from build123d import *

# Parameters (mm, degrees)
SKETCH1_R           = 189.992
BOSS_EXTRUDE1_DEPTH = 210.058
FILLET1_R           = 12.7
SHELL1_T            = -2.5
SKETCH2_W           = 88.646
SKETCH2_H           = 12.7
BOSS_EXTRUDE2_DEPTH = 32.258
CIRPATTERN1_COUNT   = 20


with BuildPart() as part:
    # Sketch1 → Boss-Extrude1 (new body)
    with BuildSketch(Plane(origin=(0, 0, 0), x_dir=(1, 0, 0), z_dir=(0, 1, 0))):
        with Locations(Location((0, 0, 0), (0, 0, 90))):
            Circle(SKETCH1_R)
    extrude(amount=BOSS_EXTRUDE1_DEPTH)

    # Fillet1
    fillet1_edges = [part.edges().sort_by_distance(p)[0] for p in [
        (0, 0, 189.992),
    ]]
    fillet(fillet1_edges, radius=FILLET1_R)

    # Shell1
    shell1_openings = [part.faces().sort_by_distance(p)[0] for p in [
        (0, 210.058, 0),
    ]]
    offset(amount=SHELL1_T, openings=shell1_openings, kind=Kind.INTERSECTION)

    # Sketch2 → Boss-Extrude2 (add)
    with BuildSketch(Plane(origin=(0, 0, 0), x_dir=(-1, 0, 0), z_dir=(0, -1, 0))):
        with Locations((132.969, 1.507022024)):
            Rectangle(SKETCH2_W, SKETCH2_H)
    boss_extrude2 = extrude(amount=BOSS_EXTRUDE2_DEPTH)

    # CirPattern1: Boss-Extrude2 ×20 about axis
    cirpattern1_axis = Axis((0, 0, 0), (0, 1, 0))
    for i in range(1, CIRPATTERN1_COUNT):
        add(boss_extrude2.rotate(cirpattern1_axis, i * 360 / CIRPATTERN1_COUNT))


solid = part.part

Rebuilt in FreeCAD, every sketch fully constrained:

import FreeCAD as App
import Part
import Sketcher

V = App.Vector
Q = App.Units.Quantity


def edges_at(feature, points):
    """Names of the edges that pass closest to the given points."""
    edges = feature.Shape.Edges
    near = lambda p: min(range(len(edges)), key=lambda i: edges[i].distToShape(Part.Vertex(*p))[0])
    return sorted({f"Edge{near(p) + 1}" for p in points})


def faces_at(feature, points):
    """Names of the faces that lie closest to the given points."""
    faces = feature.Shape.Faces
    near = lambda p: min(range(len(faces)), key=lambda i: faces[i].distToShape(Part.Vertex(*p))[0])
    return sorted({f"Face{near(p) + 1}" for p in points})


def add_polygon(sketch, points):
    """Adds a closed chain of lines whose ends are joined by coincident constraints."""
    first, n = sketch.GeometryCount, len(points)
    for a, b in zip(points, points[1:] + points[:1]):
        sketch.addGeometry(Part.LineSegment(App.Vector(*a, 0), App.Vector(*b, 0)), False)
    for i in range(n):
        sketch.addConstraint(Sketcher.Constraint("Coincident", first + i, 2, first + (i + 1) % n, 1))

doc = App.newDocument("Part")
body = doc.addObject("PartDesign::Body", "Body")

sketch1 = doc.addObject("Sketcher::SketchObject", "Sketch")
body.addObject(sketch1)
sketch1.AttachmentSupport = (doc.XZ_Plane, [""])
sketch1.MapMode = "FlatFace"
sketch1.addGeometry(Part.Circle(V(0, 0, 0), V(0, 0, 1), 189.992), False)
sketch1.addConstraint([
    Sketcher.Constraint("Coincident", 0, 3, -1, 1),
    Sketcher.Constraint("Diameter", 0, Q("14.96 in")),
])
pad1 = doc.addObject("PartDesign::Pad", "Pad")
body.addObject(pad1)
pad1.Profile = sketch1
pad1.Length = Q("8.27 in")
pad1.Reversed = True
doc.recompute()

fillet = doc.addObject("PartDesign::Fillet", "Fillet")
body.addObject(fillet)
fillet.Base = (pad1, edges_at(pad1, [(0, 0, 189.992)]))
fillet.Radius = Q("0.5 in")
doc.recompute()

thickness = doc.addObject("PartDesign::Thickness", "Thickness")
body.addObject(thickness)
thickness.Base = (fillet, faces_at(fillet, [(0, 210.058, 0)]))
thickness.Value = 2.5
thickness.Reversed = True
thickness.Join = "Intersection"

sketch2 = doc.addObject("Sketcher::SketchObject", "Sketch001")
body.addObject(sketch2)
sketch2.AttachmentSupport = (doc.XZ_Plane, [""])
sketch2.MapMode = "FlatFace"
add_polygon(sketch2, [(-88.646, -7.857022), (-88.646, 4.842978), (-177.292, 4.842978), (-177.292, -7.857022)])
sketch2.addConstraint([
    Sketcher.Constraint("Vertical", 0),
    Sketcher.Constraint("Horizontal", 1),
    Sketcher.Constraint("Vertical", 2),
    Sketcher.Constraint("Horizontal", 3),
    Sketcher.Constraint("DistanceY", 0, 1, 0, 2, Q("0.5 in")),
    Sketcher.Constraint("DistanceX", 1, 2, 1, 1, Q("3.49 in")),
    Sketcher.Constraint("DistanceX", 0, 2, -1, 1, Q("3.49 in")),
    Sketcher.Constraint("DistanceY", -1, 1, 0, 2, 4.842978),
])
pad2 = doc.addObject("PartDesign::Pad", "Pad001")
body.addObject(pad2)
pad2.Profile = sketch2
pad2.Length = Q("1.27 in")
doc.recompute()

polarpattern = doc.addObject("PartDesign::PolarPattern", "PolarPattern")
body.addObject(polarpattern)
polarpattern.Originals = [pad2]
polarpattern.Axis = (doc.Y_Axis, [""])
polarpattern.Angle = 360
polarpattern.Occurrences = 20
body.Tip = polarpattern

doc.recompute()
